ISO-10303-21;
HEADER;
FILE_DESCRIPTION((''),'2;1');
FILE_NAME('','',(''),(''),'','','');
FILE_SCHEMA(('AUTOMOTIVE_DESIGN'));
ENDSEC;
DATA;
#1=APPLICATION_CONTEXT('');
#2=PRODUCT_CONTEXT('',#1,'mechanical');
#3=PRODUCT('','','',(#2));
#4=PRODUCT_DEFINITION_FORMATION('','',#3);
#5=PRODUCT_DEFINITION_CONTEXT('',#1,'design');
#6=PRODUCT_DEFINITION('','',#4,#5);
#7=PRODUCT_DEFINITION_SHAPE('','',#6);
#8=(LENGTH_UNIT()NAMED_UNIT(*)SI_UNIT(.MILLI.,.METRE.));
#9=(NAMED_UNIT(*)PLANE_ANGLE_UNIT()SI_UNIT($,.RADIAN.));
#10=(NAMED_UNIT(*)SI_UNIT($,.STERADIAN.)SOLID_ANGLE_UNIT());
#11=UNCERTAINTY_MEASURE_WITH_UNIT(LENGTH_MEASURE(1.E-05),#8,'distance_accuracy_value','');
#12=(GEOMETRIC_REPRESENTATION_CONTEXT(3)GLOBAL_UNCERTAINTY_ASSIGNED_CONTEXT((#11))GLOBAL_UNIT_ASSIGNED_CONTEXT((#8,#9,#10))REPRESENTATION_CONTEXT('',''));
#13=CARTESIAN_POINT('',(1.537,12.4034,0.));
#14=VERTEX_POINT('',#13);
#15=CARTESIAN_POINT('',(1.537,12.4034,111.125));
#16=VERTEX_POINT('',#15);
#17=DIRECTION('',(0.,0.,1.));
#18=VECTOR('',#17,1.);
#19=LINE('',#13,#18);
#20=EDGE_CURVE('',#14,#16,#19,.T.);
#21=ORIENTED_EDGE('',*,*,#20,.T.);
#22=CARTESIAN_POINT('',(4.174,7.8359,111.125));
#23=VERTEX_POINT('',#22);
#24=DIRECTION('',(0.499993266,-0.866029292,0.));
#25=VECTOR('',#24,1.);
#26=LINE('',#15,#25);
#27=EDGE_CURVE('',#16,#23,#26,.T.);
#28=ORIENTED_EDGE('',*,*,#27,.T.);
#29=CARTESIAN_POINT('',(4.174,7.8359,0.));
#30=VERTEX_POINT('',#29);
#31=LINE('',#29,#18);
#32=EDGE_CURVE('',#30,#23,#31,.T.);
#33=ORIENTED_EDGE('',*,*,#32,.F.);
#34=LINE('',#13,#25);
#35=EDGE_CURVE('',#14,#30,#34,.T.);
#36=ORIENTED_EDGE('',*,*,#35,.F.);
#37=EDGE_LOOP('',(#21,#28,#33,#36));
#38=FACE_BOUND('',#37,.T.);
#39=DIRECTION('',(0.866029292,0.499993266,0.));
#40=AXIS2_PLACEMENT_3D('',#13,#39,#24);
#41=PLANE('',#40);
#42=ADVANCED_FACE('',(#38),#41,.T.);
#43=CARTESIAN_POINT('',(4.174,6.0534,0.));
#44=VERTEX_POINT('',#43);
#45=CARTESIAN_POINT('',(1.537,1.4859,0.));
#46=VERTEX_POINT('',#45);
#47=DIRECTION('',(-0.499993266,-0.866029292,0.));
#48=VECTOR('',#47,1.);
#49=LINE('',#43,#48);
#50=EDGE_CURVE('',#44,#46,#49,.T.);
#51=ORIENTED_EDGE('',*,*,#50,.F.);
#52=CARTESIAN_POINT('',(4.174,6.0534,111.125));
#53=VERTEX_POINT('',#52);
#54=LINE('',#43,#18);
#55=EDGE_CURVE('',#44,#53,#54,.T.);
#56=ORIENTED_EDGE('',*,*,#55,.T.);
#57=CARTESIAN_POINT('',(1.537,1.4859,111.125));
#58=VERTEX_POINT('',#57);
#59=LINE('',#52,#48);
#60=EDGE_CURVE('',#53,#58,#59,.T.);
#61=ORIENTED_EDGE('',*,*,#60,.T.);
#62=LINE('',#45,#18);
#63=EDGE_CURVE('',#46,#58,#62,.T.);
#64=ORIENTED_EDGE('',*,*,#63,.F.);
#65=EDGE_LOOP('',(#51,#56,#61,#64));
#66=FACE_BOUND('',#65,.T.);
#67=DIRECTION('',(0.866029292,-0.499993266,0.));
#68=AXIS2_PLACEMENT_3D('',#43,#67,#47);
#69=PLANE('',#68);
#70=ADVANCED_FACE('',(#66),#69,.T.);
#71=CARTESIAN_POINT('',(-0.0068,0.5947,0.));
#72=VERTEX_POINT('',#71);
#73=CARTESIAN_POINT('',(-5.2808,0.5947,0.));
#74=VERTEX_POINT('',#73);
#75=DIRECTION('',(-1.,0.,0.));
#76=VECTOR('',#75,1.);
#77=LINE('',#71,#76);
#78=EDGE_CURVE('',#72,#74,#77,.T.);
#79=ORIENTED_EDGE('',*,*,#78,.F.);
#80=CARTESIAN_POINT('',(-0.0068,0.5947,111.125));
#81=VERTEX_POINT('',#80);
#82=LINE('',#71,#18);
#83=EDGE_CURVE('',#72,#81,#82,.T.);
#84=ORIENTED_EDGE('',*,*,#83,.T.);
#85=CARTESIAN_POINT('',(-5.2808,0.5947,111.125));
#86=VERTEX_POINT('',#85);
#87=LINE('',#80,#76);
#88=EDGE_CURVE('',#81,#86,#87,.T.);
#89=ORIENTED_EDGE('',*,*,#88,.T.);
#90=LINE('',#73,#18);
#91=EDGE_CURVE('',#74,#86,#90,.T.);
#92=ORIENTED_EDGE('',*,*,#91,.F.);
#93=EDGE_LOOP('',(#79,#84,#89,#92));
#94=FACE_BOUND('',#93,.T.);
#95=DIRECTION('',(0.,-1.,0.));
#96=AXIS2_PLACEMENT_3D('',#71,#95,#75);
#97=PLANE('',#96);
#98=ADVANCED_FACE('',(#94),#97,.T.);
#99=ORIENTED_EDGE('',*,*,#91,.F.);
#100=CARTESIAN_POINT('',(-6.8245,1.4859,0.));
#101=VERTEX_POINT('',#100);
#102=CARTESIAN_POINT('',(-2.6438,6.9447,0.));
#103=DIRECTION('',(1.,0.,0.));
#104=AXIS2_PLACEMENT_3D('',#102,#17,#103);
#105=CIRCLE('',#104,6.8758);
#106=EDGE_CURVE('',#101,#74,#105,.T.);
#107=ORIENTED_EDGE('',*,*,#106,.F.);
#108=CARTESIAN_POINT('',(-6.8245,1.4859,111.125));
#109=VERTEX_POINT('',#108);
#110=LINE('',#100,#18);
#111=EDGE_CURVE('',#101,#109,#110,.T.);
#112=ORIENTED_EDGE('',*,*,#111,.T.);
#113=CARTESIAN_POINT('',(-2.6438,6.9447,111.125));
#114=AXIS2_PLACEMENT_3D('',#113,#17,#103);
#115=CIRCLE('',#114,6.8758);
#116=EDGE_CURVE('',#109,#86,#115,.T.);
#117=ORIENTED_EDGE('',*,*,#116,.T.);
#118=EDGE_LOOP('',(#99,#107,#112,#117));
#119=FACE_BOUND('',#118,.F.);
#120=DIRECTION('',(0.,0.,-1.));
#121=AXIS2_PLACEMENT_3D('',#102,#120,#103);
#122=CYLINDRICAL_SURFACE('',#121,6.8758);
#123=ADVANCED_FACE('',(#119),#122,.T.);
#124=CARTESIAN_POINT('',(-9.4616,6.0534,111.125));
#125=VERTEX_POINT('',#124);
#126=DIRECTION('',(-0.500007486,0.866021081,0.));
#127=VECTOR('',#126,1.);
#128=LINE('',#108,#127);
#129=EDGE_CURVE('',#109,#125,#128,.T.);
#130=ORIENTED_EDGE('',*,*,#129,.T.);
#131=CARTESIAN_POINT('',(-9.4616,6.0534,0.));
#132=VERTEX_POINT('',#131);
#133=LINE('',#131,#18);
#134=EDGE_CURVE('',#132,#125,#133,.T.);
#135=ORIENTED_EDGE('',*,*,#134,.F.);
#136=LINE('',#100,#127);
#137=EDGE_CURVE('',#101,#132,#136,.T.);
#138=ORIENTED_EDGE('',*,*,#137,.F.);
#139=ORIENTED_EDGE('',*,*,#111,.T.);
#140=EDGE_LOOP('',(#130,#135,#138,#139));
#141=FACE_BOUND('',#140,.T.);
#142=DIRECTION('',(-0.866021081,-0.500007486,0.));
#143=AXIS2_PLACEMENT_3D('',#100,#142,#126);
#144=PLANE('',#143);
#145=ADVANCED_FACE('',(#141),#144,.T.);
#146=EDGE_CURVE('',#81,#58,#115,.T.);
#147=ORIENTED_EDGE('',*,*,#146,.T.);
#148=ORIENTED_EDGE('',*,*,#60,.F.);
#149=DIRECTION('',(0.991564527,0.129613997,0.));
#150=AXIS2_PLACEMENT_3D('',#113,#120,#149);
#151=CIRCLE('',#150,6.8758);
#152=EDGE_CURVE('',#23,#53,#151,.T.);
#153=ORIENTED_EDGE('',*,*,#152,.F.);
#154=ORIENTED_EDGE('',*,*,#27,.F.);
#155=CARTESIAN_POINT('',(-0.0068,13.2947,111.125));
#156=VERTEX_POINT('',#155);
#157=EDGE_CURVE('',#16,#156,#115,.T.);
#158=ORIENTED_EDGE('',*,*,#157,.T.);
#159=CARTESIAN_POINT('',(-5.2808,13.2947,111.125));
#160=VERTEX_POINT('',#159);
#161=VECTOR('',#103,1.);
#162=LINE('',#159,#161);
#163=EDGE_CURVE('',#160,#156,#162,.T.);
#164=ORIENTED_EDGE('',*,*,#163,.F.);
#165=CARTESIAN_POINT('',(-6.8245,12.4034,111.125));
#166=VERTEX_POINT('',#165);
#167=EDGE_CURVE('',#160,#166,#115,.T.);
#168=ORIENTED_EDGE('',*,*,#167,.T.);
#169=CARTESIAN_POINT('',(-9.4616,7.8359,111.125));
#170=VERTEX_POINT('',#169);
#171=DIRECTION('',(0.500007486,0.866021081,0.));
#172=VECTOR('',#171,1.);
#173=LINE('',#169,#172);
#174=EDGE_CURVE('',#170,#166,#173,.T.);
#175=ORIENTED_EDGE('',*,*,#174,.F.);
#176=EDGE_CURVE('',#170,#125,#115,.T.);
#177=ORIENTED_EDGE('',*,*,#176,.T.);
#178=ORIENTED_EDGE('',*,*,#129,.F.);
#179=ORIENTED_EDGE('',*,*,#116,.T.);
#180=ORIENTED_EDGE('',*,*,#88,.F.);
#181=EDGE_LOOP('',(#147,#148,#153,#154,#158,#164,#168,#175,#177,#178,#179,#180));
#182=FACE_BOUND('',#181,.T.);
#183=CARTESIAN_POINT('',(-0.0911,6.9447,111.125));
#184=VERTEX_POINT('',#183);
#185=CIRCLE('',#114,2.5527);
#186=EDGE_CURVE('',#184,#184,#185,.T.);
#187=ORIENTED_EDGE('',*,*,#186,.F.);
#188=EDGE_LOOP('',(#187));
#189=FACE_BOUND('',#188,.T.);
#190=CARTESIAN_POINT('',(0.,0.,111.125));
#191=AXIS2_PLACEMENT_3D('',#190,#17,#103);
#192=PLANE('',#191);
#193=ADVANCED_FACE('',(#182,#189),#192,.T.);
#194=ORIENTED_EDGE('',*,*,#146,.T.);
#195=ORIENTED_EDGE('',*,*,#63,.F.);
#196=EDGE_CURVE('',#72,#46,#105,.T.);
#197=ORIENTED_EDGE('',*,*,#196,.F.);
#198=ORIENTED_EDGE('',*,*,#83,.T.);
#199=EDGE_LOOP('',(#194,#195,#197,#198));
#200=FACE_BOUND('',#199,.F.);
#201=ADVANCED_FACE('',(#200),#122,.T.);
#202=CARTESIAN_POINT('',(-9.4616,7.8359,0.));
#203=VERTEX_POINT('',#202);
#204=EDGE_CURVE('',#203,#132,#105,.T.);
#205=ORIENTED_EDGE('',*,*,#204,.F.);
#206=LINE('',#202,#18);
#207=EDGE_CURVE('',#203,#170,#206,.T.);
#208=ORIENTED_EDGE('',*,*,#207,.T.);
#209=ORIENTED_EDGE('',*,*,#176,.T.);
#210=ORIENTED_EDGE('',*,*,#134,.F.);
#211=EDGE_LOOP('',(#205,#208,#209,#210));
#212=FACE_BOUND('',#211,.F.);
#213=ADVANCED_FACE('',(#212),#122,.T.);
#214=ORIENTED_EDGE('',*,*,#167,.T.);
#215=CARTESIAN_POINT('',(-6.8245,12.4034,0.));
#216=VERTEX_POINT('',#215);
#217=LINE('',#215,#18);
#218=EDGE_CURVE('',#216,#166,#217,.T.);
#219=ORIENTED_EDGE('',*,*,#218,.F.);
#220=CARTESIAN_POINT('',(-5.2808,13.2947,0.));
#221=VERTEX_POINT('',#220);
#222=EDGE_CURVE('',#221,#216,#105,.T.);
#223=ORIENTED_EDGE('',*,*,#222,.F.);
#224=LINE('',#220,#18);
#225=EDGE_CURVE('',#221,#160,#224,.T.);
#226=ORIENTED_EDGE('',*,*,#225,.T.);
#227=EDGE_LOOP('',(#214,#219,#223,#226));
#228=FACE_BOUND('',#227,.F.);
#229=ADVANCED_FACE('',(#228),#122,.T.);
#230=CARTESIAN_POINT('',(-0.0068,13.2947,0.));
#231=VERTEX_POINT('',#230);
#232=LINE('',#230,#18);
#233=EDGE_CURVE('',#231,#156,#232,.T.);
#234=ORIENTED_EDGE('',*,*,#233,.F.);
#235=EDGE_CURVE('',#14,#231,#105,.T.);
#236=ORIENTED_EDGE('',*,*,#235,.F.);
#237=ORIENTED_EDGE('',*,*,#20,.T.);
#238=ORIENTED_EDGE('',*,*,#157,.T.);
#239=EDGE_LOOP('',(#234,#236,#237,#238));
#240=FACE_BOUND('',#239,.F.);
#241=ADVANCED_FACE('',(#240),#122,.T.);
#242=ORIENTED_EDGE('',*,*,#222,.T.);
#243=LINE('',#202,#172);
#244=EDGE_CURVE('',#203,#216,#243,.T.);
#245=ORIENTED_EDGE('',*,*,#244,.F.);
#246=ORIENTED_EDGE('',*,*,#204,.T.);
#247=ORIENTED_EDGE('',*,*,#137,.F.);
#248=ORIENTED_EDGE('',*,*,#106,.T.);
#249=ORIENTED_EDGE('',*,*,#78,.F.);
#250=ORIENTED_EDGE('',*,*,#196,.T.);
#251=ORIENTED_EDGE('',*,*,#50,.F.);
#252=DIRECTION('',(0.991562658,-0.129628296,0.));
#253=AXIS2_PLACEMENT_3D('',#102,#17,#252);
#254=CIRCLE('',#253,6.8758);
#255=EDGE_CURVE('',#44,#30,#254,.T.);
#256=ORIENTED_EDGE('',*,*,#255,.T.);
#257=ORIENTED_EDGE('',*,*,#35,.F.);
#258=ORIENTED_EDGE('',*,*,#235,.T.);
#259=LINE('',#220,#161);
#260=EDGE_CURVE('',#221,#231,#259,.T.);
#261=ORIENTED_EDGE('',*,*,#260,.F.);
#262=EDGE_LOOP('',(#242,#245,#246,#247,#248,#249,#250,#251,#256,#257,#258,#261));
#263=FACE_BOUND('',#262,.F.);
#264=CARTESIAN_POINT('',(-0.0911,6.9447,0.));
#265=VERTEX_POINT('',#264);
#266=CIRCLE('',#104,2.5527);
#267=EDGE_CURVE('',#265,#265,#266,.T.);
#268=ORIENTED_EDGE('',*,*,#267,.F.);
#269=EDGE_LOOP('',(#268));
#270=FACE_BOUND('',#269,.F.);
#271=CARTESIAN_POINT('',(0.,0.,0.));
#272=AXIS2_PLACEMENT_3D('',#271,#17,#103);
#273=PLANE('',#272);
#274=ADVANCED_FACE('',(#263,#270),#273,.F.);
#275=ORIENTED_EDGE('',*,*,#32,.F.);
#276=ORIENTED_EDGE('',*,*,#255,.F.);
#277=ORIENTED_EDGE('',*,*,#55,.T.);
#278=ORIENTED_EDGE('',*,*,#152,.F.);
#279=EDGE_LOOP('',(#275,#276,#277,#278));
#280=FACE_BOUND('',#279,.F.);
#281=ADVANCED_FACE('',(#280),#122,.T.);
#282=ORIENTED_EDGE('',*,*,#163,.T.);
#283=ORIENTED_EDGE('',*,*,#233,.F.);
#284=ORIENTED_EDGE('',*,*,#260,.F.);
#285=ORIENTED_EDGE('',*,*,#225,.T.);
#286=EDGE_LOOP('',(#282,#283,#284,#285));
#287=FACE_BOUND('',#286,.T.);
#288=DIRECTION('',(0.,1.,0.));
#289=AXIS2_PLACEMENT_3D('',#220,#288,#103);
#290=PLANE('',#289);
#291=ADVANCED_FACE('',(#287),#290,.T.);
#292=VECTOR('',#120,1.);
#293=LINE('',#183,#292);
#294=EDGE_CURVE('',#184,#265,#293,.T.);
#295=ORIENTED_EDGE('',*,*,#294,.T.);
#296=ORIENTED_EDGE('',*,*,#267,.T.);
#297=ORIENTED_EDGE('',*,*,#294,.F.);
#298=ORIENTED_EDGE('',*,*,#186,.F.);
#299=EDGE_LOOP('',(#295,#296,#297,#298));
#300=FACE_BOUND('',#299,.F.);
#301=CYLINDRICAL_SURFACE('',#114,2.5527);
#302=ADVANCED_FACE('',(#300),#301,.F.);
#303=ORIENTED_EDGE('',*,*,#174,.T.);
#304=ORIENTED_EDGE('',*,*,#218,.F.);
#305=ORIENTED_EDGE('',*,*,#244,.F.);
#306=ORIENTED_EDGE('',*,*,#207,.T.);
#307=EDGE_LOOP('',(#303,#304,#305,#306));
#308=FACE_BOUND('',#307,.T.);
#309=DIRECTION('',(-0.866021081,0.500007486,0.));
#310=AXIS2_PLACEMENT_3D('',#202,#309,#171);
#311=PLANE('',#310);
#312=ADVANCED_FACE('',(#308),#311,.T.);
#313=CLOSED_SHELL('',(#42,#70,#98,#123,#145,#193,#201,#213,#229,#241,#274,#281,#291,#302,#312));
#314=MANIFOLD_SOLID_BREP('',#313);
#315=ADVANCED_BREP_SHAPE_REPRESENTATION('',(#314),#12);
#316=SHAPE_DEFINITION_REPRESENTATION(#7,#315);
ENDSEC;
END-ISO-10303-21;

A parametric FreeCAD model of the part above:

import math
import FreeCAD as App
import Part
import Sketcher
from FreeCAD import Vector
Q = App.Units.Quantity

doc = App.newDocument("Part")
params = doc.addObject("Spreadsheet::Sheet", "Params")
for row, (alias, value) in enumerate([
    ("pad1_length", "4.375 in"),
    ("sketch2_diameter", "0.201 in"),
    ("pocket1_length", "4.375 in"),
], start=1):
    params.set(f"A{row}", alias)
    params.set(f"B{row}", "=" + value)
    params.setAlias(f"B{row}", alias)

body = doc.addObject("PartDesign::Body", "Body")

# Sketch on XY plane
sketch1 = body.newObject("Sketcher::SketchObject", "Sketch")
sketch1.AttachmentSupport = (doc.getObject("XY_Plane"), [""])
sketch1.MapMode = "FlatFace"
sketch1.addGeometry(Part.ArcOfCircle(Part.Circle(Vector(-2.6438, 6.9447, 0), Vector(0, 0, 1), 6.8758), math.radians(-7.448114), math.radians(7.447287)), False)
sketch1.addGeometry(Part.LineSegment(Vector(4.174, 7.8359, 0), Vector(1.537, 12.4034, 0)), False)
sketch1.addGeometry(Part.ArcOfCircle(Part.Circle(Vector(-2.6438, 6.9447, 0), Vector(0, 0, 1), 6.8758), math.radians(52.551618), math.radians(67.448081)), False)
sketch1.addGeometry(Part.LineSegment(Vector(-0.0068, 13.2947, 0), Vector(-5.2808, 13.2947, 0)), False)
sketch1.addGeometry(Part.ArcOfCircle(Part.Circle(Vector(-2.6438, 6.9447, 0), Vector(0, 0, 1), 6.8758), math.radians(112.551919), math.radians(127.447721)), False)
sketch1.addGeometry(Part.LineSegment(Vector(-6.8245, 12.4034, 0), Vector(-9.4616, 7.8359, 0)), False)
sketch1.addGeometry(Part.ArcOfCircle(Part.Circle(Vector(-2.6438, 6.9447, 0), Vector(0, 0, 1), 6.8758), math.radians(172.552713), math.radians(187.448114)), False)
sketch1.addGeometry(Part.LineSegment(Vector(-9.4616, 6.0534, 0), Vector(-6.8245, 1.4859, 0)), False)
sketch1.addGeometry(Part.ArcOfCircle(Part.Circle(Vector(-2.6438, 6.9447, 0), Vector(0, 0, 1), 6.8758), math.radians(-127.447214), math.radians(-112.551919)), False)
sketch1.addGeometry(Part.LineSegment(Vector(-5.2808, 0.5947, 0), Vector(-0.0068, 0.5947, 0)), False)
sketch1.addGeometry(Part.ArcOfCircle(Part.Circle(Vector(-2.6438, 6.9447, 0), Vector(0, 0, 1), 6.8758), math.radians(-67.448081), math.radians(-52.552124)), False)
sketch1.addGeometry(Part.LineSegment(Vector(1.537, 1.4859, 0), Vector(4.174, 6.0534, 0)), False)
sketch1.addConstraint(Sketcher.Constraint("Coincident", 0, 2, 1, 1))
sketch1.addConstraint(Sketcher.Constraint("Coincident", 1, 2, 2, 1))
sketch1.addConstraint(Sketcher.Constraint("Coincident", 2, 2, 3, 1))
sketch1.addConstraint(Sketcher.Constraint("Coincident", 3, 2, 4, 1))
sketch1.addConstraint(Sketcher.Constraint("Coincident", 4, 2, 5, 1))
sketch1.addConstraint(Sketcher.Constraint("Coincident", 5, 2, 6, 1))
sketch1.addConstraint(Sketcher.Constraint("Coincident", 6, 2, 7, 1))
sketch1.addConstraint(Sketcher.Constraint("Coincident", 7, 2, 8, 1))
sketch1.addConstraint(Sketcher.Constraint("Coincident", 8, 2, 9, 1))
sketch1.addConstraint(Sketcher.Constraint("Coincident", 9, 2, 10, 1))
sketch1.addConstraint(Sketcher.Constraint("Coincident", 10, 2, 11, 1))
sketch1.addConstraint(Sketcher.Constraint("Coincident", 11, 2, 0, 1))
sketch1.addConstraint(Sketcher.Constraint("Horizontal", 3))
sketch1.addConstraint(Sketcher.Constraint("Horizontal", 9))
sketch1.addConstraint(Sketcher.Constraint("Coincident", 2, 3, 0, 3))
sketch1.addConstraint(Sketcher.Constraint("Coincident", 4, 3, 0, 3))
sketch1.addConstraint(Sketcher.Constraint("Coincident", 6, 3, 0, 3))
sketch1.addConstraint(Sketcher.Constraint("Coincident", 8, 3, 0, 3))
sketch1.addConstraint(Sketcher.Constraint("Coincident", 10, 3, 0, 3))
sketch1.addConstraint(Sketcher.Constraint("Equal", 0, 2))
sketch1.addConstraint(Sketcher.Constraint("Equal", 2, 4))
sketch1.addConstraint(Sketcher.Constraint("Equal", 4, 6))
sketch1.addConstraint(Sketcher.Constraint("Equal", 6, 8))
sketch1.addConstraint(Sketcher.Constraint("Equal", 8, 10))
sketch1.addConstraint(Sketcher.Constraint("Parallel", 1, 7))
sketch1.addConstraint(Sketcher.Constraint("Parallel", 5, 11))
sketch1.addConstraint(Sketcher.Constraint("Horizontal", 1, 2, 4, 2))
sketch1.addConstraint(Sketcher.Constraint("Horizontal", 0, 2, 5, 2))
sketch1.addConstraint(Sketcher.Constraint("Horizontal", 7, 2, 10, 2))
sketch1.addConstraint(Sketcher.Constraint("Vertical", 5, 2, 6, 2))
sketch1.addConstraint(Sketcher.Constraint("Vertical", 3, 2, 8, 2))
sketch1.addConstraint(Sketcher.Constraint("Radius", 0, Q("0.2707 in")))
sketch1.addConstraint(Sketcher.Constraint("Angle", 1, Q("119.9996 deg")))
sketch1.addConstraint(Sketcher.Constraint("DistanceY", 0, 3, 2, 2, Q("0.25 in")))
sketch1.addConstraint(Sketcher.Constraint("DistanceY", 10, 2, 0, 2, Q("0.25 in")))
sketch1.addConstraint(Sketcher.Constraint("DistanceY", -1, 1, 0, 2, Q("0.3085 in")))
sketch1.addConstraint(Sketcher.Constraint("DistanceX", -1, 1, 1, 2, Q("0.0605 in")))
pad1 = body.newObject("PartDesign::Pad", "Pad")
pad1.Profile = sketch1
pad1.setExpression("Length", "Params.pad1_length")

# Sketch on XY plane
sketch2 = body.newObject("Sketcher::SketchObject", "Sketch001")
sketch2.AttachmentSupport = (doc.getObject("XY_Plane"), [""])
sketch2.MapMode = "FlatFace"
sketch2.AttachmentOffset = App.Placement(Vector(0, 0, 4.375 * 25.4), App.Rotation())
sketch2.addGeometry(Part.Circle(Vector(-2.6438, 6.9447, 0), Vector(0, 0, 1), 2.5527), False)
sketch2.addConstraint(Sketcher.Constraint("Diameter", 0, Q("0.201 in")))
sketch2.addConstraint(Sketcher.Constraint("DistanceX", 0, 3, -1, 1, 2.6438))
sketch2.addConstraint(Sketcher.Constraint("DistanceY", -1, 1, 0, 3, 6.9447))
sketch2.setExpression("Constraints[0]", "Params.sketch2_diameter")
pocket1 = body.newObject("PartDesign::Pocket", "Pocket")
pocket1.Profile = sketch2
pocket1.setExpression("Length", "Params.pocket1_length")

doc.recompute()
